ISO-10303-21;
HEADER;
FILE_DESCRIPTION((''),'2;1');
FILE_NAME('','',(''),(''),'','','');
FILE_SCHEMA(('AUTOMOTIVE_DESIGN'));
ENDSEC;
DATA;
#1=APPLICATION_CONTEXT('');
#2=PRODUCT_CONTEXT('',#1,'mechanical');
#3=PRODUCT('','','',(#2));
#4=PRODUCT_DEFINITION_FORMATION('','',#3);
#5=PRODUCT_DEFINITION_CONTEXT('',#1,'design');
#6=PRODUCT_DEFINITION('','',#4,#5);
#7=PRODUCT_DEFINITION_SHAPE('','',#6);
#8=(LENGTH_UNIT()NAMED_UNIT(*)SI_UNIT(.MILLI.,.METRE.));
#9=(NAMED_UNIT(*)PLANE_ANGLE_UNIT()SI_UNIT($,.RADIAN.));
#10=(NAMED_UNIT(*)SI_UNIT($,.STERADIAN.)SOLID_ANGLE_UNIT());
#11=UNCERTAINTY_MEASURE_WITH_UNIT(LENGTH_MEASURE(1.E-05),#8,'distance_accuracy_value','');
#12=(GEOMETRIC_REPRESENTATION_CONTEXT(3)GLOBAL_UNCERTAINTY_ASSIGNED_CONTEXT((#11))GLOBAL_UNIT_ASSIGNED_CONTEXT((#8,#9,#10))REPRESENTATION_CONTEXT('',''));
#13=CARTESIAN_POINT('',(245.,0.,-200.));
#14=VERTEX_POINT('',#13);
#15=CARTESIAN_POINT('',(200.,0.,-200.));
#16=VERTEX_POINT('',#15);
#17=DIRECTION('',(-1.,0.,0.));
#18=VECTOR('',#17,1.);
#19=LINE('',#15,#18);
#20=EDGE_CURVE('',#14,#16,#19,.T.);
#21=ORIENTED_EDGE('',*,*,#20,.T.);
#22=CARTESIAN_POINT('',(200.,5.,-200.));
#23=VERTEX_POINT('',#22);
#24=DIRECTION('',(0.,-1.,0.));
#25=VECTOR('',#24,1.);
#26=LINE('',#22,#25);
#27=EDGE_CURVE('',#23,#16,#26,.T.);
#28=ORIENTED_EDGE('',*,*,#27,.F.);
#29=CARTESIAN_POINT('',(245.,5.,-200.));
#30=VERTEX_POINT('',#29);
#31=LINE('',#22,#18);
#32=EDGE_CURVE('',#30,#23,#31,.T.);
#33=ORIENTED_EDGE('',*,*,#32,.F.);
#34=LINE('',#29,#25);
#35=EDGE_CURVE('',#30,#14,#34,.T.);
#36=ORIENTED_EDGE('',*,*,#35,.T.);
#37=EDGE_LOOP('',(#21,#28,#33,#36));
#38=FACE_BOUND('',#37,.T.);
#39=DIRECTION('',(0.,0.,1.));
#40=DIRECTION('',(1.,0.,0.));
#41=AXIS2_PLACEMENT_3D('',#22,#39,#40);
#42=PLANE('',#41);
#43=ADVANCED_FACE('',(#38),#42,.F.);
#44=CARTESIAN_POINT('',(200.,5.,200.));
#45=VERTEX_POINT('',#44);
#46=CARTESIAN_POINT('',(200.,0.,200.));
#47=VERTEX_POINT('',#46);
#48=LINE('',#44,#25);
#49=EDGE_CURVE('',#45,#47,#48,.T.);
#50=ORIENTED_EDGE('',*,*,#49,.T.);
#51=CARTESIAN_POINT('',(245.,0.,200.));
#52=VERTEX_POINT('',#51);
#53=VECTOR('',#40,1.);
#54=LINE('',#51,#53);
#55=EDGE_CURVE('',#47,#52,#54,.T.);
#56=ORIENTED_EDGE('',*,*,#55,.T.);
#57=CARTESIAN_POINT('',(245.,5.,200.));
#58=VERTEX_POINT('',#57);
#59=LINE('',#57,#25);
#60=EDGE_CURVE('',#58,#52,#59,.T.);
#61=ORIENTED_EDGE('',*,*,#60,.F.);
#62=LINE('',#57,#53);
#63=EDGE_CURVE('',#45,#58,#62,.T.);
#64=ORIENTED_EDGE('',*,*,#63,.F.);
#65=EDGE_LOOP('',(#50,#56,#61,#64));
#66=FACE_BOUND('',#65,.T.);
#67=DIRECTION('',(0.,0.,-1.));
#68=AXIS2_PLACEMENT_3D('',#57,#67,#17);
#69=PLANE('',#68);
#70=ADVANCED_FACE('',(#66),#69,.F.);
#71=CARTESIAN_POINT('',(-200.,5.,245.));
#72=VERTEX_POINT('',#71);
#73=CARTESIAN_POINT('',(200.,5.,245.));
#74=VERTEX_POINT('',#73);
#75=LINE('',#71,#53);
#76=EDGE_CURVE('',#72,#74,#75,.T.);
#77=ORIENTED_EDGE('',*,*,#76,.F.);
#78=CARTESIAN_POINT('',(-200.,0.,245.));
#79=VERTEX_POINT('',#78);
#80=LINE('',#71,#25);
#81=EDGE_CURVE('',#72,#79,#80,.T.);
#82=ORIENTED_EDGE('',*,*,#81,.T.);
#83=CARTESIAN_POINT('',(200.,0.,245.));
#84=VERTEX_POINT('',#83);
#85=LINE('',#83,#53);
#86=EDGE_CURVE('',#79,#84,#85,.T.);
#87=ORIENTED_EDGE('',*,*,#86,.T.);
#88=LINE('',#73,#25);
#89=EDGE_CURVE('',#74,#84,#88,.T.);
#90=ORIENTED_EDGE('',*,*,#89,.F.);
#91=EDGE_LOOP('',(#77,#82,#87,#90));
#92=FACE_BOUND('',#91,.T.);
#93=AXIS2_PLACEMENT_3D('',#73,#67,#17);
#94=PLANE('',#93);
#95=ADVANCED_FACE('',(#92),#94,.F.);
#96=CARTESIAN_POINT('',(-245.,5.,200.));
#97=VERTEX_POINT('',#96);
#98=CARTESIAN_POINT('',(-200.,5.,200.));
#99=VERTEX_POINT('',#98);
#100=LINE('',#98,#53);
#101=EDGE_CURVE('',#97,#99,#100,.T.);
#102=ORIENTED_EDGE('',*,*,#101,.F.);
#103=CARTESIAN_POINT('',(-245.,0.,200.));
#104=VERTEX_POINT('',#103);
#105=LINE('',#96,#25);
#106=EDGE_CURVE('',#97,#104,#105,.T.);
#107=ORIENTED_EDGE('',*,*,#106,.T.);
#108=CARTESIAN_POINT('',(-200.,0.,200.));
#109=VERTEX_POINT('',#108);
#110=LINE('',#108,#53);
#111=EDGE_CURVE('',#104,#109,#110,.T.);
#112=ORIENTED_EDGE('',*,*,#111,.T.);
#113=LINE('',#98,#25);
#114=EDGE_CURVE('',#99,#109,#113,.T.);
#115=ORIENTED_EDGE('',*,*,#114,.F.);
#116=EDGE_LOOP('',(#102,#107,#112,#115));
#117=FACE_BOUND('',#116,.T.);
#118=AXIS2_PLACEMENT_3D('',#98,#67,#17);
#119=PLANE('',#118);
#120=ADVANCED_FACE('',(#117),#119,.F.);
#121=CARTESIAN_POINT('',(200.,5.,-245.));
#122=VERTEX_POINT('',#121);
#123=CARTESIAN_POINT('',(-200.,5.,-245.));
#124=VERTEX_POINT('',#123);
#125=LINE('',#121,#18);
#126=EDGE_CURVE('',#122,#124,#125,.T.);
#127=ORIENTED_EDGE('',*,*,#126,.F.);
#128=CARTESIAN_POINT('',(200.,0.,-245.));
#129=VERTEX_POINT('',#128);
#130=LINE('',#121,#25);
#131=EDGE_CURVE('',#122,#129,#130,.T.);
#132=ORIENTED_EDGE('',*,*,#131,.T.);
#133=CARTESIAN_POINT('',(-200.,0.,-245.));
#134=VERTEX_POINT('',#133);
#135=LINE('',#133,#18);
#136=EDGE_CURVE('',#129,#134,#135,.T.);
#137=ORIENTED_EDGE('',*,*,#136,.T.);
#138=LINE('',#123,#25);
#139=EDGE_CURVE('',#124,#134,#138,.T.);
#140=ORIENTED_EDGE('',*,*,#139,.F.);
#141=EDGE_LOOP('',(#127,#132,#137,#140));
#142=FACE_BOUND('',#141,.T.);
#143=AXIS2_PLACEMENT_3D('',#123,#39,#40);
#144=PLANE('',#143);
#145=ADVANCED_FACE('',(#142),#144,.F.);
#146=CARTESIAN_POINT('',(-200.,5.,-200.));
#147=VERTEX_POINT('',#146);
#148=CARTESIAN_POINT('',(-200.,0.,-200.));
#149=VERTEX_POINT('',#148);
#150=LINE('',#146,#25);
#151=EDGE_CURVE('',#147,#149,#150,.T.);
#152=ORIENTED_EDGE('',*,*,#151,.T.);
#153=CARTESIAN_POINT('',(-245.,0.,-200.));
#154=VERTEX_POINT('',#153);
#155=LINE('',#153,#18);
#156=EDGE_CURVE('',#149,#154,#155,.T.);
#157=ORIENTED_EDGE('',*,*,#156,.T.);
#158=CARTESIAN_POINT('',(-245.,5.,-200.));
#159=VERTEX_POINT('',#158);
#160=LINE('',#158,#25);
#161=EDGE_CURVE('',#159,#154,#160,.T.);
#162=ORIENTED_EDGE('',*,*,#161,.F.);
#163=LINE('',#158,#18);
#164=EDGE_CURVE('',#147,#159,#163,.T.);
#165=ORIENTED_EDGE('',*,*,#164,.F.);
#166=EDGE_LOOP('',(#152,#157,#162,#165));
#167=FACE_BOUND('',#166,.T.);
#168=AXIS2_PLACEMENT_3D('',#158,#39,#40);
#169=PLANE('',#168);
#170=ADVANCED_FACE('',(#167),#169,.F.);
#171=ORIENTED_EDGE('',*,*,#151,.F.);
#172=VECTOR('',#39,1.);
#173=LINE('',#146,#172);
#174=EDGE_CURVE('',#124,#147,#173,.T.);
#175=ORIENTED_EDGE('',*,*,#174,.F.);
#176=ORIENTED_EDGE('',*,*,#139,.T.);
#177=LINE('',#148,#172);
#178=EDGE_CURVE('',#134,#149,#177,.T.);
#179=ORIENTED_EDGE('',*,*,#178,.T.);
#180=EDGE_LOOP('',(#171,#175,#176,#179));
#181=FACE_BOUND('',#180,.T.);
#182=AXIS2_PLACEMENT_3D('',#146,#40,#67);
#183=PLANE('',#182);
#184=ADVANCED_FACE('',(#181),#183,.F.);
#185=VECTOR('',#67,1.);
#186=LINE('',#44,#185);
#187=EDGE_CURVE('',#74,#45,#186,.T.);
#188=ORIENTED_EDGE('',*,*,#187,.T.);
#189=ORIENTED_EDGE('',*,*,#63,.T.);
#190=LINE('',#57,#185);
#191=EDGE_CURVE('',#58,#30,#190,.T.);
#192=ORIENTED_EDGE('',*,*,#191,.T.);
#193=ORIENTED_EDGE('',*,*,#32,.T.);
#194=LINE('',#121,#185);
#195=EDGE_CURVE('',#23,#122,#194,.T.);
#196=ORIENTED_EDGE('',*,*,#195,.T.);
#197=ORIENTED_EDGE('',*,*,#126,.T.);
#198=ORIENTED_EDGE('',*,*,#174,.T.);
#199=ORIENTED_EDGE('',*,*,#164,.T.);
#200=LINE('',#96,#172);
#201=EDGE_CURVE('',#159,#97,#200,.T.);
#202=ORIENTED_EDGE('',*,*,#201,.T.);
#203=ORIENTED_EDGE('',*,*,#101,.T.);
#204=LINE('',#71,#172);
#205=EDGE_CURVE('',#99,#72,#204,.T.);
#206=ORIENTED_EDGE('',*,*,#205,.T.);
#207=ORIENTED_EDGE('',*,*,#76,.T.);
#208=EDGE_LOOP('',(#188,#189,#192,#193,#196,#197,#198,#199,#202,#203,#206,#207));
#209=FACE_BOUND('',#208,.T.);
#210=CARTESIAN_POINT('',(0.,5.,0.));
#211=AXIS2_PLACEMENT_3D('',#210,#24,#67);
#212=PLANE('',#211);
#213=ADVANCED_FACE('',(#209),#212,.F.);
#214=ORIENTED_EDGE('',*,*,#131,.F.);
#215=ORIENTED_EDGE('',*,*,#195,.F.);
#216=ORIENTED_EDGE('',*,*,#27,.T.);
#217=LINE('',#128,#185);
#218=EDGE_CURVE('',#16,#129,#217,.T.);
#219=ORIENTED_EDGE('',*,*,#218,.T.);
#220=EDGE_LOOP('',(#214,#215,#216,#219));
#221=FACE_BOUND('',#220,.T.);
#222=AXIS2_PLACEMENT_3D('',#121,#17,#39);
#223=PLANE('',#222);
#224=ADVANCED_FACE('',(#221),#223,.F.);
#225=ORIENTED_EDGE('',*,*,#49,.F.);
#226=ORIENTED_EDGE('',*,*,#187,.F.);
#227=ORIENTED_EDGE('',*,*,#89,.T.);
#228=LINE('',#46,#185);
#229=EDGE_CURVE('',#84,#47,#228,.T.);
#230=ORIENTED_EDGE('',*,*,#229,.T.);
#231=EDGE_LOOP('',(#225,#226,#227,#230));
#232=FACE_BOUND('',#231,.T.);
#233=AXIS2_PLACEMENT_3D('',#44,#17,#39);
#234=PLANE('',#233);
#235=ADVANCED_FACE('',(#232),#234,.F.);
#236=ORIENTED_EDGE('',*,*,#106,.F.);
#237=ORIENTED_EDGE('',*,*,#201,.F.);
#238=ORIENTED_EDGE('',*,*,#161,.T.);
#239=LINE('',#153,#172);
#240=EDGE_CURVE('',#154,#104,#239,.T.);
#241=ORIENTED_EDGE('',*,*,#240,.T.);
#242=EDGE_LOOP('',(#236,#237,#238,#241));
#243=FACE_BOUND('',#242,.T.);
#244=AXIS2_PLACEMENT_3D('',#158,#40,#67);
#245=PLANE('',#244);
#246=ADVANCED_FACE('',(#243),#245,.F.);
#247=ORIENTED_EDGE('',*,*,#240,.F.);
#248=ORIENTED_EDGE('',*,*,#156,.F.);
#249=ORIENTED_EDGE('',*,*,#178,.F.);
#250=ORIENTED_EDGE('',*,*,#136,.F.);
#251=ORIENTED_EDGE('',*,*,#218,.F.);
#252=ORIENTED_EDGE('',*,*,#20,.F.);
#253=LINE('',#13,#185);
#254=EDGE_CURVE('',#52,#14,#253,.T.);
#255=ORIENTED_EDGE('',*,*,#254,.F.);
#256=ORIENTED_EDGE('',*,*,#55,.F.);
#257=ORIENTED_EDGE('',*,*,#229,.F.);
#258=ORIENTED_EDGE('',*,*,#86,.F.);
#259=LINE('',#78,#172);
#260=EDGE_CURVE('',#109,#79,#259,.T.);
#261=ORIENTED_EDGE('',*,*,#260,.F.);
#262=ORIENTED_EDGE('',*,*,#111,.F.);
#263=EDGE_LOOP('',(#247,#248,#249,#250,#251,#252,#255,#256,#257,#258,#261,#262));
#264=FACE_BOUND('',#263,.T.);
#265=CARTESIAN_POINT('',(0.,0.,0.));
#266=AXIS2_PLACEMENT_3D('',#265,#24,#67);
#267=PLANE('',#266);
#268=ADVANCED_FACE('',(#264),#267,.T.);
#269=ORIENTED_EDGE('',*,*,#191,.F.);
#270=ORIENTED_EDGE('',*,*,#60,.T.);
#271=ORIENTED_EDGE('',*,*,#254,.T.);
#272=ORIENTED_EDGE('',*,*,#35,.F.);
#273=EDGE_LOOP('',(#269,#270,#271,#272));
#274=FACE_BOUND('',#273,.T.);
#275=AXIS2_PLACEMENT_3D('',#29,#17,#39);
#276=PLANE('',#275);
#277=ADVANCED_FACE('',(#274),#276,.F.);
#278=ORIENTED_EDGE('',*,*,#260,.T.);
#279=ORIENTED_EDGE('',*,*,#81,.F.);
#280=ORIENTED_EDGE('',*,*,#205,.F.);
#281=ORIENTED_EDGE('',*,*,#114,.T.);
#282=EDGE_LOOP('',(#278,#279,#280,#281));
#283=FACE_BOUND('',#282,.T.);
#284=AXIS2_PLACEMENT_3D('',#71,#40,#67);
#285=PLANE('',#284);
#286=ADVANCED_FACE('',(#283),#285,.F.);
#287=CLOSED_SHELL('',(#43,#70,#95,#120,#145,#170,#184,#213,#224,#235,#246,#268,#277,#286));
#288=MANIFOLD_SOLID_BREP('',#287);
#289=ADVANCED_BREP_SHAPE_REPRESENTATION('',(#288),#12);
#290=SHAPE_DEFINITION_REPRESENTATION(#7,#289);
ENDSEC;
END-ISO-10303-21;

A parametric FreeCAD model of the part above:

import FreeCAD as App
import Part
import Sketcher

V = App.Vector

doc = App.newDocument("Part")
params = doc.addObject("Spreadsheet::Sheet", "Params")
for row, (alias, value) in enumerate([
    ("sketch1_width", "45 mm"),
    ("sketch1_width2", "400 mm"),
    ("pad1_length", "5 mm"),
], start=1):
    params.set(f"A{row}", alias)
    params.set(f"B{row}", "=" + value)
    params.setAlias(f"B{row}", alias)

body = doc.addObject("PartDesign::Body", "Body")

# Sketch on XZ plane
sketch1 = doc.addObject("Sketcher::SketchObject", "Sketch")
body.addObject(sketch1)
sketch1.AttachmentSupport = (doc.XZ_Plane, [""])
sketch1.MapMode = "FlatFace"
sketch1.addGeometry([
    Part.LineSegment(V(-200, -200, 0), V(-245, -200, 0)),  # 0
    Part.LineSegment(V(-245, -200, 0), V(-245, 200, 0)),  # 1
    Part.LineSegment(V(-245, 200, 0), V(-200, 200, 0)),  # 2
    Part.LineSegment(V(-200, 200, 0), V(-200, 245, 0)),  # 3
    Part.LineSegment(V(-200, 245, 0), V(200, 245, 0)),  # 4
    Part.LineSegment(V(200, 245, 0), V(200, 200, 0)),  # 5
    Part.LineSegment(V(200, 200, 0), V(245, 200, 0)),  # 6
    Part.LineSegment(V(245, 200, 0), V(245, -200, 0)),  # 7
    Part.LineSegment(V(245, -200, 0), V(200, -200, 0)),  # 8
    Part.LineSegment(V(200, -200, 0), V(200, -245, 0)),  # 9
    Part.LineSegment(V(200, -245, 0), V(-200, -245, 0)),  # 10
    Part.LineSegment(V(-200, -245, 0), V(-200, -200, 0)),  # 11
], False)
sketch1.addConstraint([
    Sketcher.Constraint("Coincident", 0, 2, 1, 1),
    Sketcher.Constraint("Coincident", 1, 2, 2, 1),
    Sketcher.Constraint("Coincident", 2, 2, 3, 1),
    Sketcher.Constraint("Coincident", 3, 2, 4, 1),
    Sketcher.Constraint("Coincident", 4, 2, 5, 1),
    Sketcher.Constraint("Coincident", 5, 2, 6, 1),
    Sketcher.Constraint("Coincident", 6, 2, 7, 1),
    Sketcher.Constraint("Coincident", 7, 2, 8, 1),
    Sketcher.Constraint("Coincident", 8, 2, 9, 1),
    Sketcher.Constraint("Coincident", 9, 2, 10, 1),
    Sketcher.Constraint("Coincident", 10, 2, 11, 1),
    Sketcher.Constraint("Coincident", 11, 2, 0, 1),
    Sketcher.Constraint("Horizontal", 0),
    Sketcher.Constraint("Vertical", 1),
    Sketcher.Constraint("Horizontal", 2),
    Sketcher.Constraint("Vertical", 3),
    Sketcher.Constraint("Horizontal", 4),
    Sketcher.Constraint("Vertical", 5),
    Sketcher.Constraint("Horizontal", 6),
    Sketcher.Constraint("Vertical", 7),
    Sketcher.Constraint("Horizontal", 8),
    Sketcher.Constraint("Vertical", 9),
    Sketcher.Constraint("Horizontal", 10),
    Sketcher.Constraint("Vertical", 11),
    Sketcher.Constraint("Symmetric", 0, 2, 6, 2, -1, 1),
    Sketcher.Constraint("Symmetric", 2, 2, 8, 2, -1, 1),
    Sketcher.Constraint("Symmetric", 4, 2, 10, 2, -1, 1),
    Sketcher.Constraint("Symmetric", 2, 2, 5, 2, -2),
    Sketcher.Constraint("Equal", 10, 1),
    Sketcher.Constraint("Equal", 8, 3),
    Sketcher.Constraint("DistanceX", 0, 2, 0, 1, 45.0),
    Sketcher.Constraint("DistanceX", 4, 1, 4, 2, 400.0),
])
sketch1.setExpression("Constraints[30]", "Params.sketch1_width")
sketch1.setExpression("Constraints[31]", "Params.sketch1_width2")
pad1 = doc.addObject("PartDesign::Pad", "Pad")
body.addObject(pad1)
pad1.Profile = sketch1
pad1.setExpression("Length", "Params.pad1_length")
pad1.Reversed = True

doc.recompute()
